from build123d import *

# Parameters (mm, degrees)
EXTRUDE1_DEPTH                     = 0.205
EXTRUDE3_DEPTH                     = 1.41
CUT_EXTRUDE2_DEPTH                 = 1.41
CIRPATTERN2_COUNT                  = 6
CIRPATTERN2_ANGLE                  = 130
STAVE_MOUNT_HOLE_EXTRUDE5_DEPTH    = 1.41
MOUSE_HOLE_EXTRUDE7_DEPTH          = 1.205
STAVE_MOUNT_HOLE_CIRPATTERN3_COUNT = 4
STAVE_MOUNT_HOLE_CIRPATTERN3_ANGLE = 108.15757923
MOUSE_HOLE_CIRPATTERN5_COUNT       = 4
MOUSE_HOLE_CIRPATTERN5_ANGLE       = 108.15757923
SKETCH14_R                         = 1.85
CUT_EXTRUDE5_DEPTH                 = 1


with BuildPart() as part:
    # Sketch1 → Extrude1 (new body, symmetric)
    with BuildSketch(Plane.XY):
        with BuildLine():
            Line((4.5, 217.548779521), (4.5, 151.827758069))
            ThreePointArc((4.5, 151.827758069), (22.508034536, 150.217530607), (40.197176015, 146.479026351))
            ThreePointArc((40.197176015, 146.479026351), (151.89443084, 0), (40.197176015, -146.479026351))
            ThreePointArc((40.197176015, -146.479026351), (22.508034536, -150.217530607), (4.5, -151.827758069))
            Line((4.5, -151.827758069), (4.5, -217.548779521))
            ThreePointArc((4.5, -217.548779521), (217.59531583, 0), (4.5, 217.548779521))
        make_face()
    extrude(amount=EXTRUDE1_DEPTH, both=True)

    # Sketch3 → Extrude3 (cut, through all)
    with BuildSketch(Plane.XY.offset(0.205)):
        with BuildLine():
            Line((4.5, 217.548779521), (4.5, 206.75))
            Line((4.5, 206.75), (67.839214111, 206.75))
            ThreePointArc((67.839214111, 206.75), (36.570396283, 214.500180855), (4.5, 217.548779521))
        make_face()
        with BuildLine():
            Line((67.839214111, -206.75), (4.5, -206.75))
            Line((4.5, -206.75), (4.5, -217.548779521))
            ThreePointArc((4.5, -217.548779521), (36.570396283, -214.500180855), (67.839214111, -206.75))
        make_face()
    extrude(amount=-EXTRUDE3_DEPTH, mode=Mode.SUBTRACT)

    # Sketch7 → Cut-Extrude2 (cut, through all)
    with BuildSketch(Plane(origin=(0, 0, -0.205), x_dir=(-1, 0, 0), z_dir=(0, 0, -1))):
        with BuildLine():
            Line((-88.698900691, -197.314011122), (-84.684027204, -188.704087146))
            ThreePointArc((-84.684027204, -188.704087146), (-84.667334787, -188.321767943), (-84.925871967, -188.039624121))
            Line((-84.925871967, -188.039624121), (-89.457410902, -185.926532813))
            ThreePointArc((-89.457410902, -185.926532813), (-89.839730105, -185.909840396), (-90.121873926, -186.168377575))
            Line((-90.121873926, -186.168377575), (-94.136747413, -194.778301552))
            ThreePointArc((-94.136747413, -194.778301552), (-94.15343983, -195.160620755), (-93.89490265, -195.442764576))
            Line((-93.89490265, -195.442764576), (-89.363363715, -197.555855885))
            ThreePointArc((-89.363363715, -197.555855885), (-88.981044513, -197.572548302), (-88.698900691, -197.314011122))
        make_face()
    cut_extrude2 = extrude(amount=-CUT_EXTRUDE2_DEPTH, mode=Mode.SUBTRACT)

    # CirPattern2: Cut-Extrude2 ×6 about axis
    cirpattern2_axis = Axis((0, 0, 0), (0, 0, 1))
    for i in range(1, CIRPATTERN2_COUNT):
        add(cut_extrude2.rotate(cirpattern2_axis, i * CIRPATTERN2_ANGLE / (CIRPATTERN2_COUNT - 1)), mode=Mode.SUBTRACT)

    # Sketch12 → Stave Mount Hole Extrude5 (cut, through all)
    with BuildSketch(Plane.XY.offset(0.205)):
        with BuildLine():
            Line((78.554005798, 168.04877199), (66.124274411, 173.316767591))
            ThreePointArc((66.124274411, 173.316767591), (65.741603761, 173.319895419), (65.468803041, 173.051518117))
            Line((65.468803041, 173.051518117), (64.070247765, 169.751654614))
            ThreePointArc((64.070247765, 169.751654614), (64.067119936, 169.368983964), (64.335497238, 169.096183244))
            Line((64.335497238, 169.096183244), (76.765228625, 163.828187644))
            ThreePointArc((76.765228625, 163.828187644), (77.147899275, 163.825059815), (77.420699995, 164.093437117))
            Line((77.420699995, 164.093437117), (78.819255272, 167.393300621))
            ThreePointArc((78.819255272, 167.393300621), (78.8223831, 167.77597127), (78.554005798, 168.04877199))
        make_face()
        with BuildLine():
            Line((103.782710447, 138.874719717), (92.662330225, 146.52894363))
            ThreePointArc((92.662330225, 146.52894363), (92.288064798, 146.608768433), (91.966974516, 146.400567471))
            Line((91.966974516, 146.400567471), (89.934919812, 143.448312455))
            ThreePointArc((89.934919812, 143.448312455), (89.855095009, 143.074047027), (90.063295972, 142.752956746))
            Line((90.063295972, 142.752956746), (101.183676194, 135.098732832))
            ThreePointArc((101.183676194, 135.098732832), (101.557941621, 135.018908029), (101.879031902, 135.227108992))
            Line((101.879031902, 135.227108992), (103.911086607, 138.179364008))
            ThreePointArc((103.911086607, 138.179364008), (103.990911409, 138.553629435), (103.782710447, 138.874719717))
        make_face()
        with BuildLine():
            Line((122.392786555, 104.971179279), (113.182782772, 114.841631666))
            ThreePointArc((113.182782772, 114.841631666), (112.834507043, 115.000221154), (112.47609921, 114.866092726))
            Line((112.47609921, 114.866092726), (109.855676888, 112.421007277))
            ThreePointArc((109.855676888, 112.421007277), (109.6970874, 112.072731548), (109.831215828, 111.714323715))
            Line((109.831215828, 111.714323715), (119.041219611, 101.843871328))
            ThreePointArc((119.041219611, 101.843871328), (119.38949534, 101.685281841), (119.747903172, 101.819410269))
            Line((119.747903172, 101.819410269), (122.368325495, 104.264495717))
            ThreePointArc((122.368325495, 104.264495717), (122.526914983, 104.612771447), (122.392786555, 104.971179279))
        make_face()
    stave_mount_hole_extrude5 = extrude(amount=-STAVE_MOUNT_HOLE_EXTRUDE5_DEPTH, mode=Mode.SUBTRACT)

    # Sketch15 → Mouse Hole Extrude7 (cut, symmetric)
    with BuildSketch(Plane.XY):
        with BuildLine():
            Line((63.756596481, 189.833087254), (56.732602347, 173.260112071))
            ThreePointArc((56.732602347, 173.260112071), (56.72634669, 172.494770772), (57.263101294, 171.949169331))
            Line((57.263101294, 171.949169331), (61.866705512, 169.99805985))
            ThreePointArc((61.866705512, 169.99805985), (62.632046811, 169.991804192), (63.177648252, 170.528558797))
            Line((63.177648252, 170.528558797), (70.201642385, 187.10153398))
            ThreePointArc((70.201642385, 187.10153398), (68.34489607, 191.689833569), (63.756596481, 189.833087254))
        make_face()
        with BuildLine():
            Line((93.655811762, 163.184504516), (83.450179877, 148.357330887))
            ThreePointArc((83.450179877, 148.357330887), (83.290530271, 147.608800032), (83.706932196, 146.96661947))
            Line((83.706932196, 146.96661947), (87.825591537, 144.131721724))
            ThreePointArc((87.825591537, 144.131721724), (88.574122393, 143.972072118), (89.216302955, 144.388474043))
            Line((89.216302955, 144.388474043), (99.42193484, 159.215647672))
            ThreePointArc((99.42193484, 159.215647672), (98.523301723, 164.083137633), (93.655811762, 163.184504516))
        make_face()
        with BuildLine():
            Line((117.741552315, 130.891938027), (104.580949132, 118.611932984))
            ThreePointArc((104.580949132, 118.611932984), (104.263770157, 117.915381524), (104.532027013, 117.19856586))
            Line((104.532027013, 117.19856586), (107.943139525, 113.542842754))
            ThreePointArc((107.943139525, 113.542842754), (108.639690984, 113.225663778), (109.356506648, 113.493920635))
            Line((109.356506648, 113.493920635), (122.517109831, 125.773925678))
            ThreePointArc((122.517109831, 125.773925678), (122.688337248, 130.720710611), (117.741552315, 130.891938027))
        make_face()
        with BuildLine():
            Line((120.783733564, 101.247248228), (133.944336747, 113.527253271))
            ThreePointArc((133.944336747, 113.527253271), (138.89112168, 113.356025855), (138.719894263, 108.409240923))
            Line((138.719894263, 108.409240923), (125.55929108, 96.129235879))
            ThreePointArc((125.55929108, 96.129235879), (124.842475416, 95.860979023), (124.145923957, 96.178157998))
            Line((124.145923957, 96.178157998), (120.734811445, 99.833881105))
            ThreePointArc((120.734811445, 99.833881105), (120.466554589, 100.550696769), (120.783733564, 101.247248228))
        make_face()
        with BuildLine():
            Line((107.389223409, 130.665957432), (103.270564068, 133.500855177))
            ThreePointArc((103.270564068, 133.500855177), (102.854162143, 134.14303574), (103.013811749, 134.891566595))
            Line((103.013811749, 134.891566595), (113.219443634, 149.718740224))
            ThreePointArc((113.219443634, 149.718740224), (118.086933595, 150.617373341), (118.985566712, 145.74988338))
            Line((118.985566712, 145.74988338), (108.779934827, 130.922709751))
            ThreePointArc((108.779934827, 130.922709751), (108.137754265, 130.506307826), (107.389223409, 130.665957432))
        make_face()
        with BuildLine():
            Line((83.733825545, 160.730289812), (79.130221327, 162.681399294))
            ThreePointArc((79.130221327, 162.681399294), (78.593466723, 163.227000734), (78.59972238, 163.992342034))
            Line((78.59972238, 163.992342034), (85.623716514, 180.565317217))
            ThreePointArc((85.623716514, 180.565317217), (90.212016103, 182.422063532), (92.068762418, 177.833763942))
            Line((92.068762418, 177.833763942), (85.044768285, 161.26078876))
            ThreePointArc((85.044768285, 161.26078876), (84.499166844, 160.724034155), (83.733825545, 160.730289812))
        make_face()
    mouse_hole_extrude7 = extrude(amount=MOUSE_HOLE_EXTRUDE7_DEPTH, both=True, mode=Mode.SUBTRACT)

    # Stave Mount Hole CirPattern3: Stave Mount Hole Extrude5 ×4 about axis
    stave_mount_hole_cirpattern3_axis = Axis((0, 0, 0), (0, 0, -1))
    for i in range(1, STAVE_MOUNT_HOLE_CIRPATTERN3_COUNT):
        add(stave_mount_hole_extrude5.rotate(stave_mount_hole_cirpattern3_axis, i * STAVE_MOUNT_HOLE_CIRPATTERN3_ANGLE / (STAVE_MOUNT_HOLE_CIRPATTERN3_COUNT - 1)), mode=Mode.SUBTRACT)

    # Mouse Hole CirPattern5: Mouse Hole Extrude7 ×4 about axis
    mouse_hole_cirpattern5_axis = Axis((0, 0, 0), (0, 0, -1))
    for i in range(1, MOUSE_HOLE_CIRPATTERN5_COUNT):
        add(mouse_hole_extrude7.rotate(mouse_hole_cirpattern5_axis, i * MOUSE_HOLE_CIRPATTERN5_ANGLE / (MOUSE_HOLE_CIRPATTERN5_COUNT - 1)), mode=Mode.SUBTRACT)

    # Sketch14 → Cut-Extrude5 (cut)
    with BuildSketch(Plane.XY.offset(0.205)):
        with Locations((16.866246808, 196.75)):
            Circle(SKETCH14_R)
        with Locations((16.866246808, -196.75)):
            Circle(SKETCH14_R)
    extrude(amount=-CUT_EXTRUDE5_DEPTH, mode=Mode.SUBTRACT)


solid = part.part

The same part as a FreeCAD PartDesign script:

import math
import FreeCAD as App
import Part
import Sketcher
from FreeCAD import Vector
Q = App.Units.Quantity

doc = App.newDocument("Part")
params = doc.addObject("Spreadsheet::Sheet", "Params")
for row, (alias, value) in enumerate([
    ("pad1_length", "0.41 mm"),
    ("sketch3_radius", "0.5 mm"),
    ("sketch3_length", "5 mm"),
    ("sketch3_length2", "9.5 mm"),
    ("sketch4_radius", "0.5 mm"),
    ("sketch4_length", "13.5 mm"),
    ("sketch5_radius", "1 mm"),
    ("sketch5_radius2", "3.5 mm"),
    ("sketch5_length", "18 mm"),
    ("pocket4_length", "2.41 mm"),
    ("sketch6_diameter", "3.7 mm"),
    ("pocket5_length", "1 mm"),
], start=1):
    params.set(f"A{row}", alias)
    params.set(f"B{row}", "=" + value)
    params.setAlias(f"B{row}", alias)

body = doc.addObject("PartDesign::Body", "Body")

# Sketch on XY plane
sketch1 = body.newObject("Sketcher::SketchObject", "Sketch")
sketch1.AttachmentSupport = (doc.getObject("XY_Plane"), [""])
sketch1.MapMode = "FlatFace"
sketch1.addGeometry(Part.LineSegment(Vector(4, 218, 0), Vector(4, 152, 0)), False)
sketch1.addGeometry(Part.ArcOfCircle(Part.Circle(Vector(0, 0, 0), Vector(0, 0, 1), 152), math.radians(74.65), math.radians(88.3)), False)
sketch1.addGeometry(Part.ArcOfCircle(Part.Circle(Vector(0, 0, 0), Vector(0, 0, 1), 152), math.radians(-75), math.radians(75)), False)
sketch1.addGeometry(Part.ArcOfCircle(Part.Circle(Vector(0, 0, 0), Vector(0, 0, 1), 152), math.radians(-88.3), math.radians(-74.65)), False)
sketch1.addGeometry(Part.LineSegment(Vector(4, -152, 0), Vector(4, -218, 0)), False)
sketch1.addGeometry(Part.ArcOfCircle(Part.Circle(Vector(0, 0, 0), Vector(0, 0, 1), 218), math.radians(-89), math.radians(89)), False)
sketch1.addConstraint(Sketcher.Constraint("Coincident", 0, 2, 1, 2))
sketch1.addConstraint(Sketcher.Constraint("Tangent", 1, 1, 2, 2))
sketch1.addConstraint(Sketcher.Constraint("Tangent", 2, 1, 3, 2))
sketch1.addConstraint(Sketcher.Constraint("Coincident", 3, 1, 4, 1))
sketch1.addConstraint(Sketcher.Constraint("Coincident", 4, 2, 5, 1))
sketch1.addConstraint(Sketcher.Constraint("Coincident", 5, 2, 0, 1))
sketch1.addConstraint(Sketcher.Constraint("Vertical", 0))
sketch1.addConstraint(Sketcher.Constraint("Vertical", 4))
sketch1.addConstraint(Sketcher.Constraint("Coincident", 1, 3, -1, 1))
sketch1.addConstraint(Sketcher.Constraint("Coincident", 3, 3, -1, 1))
sketch1.addConstraint(Sketcher.Constraint("Coincident", 5, 3, -1, 1))
sketch1.addConstraint(Sketcher.Constraint("Vertical", 1, 1, 2, 1))
sketch1.addConstraint(Sketcher.Constraint("Vertical", 0, 2, 3, 1))
sketch1.addConstraint(Sketcher.Constraint("DistanceX", -1, 1, 0, 2, 4.5))
sketch1.addConstraint(Sketcher.Constraint("Radius", 1, 151.894431))
sketch1.addConstraint(Sketcher.Constraint("Radius", 5, 217.595316))
sketch1.addConstraint(Sketcher.Constraint("DistanceY", 1, 1, 0, 2, 5.348732))
pad1 = body.newObject("PartDesign::Pad", "Pad")
pad1.Profile = sketch1
pad1.setExpression("Length", "Params.pad1_length")
pad1.Midplane = True

# Sketch on XY plane
sketch2 = body.newObject("Sketcher::SketchObject", "Sketch001")
sketch2.AttachmentSupport = (doc.getObject("XY_Plane"), [""])
sketch2.MapMode = "FlatFace"
sketch2.AttachmentOffset = App.Placement(Vector(0, 0, 0.205), App.Rotation())
sketch2.addGeometry(Part.LineSegment(Vector(4, 218, 0), Vector(4, 207, 0)), False)
sketch2.addGeometry(Part.LineSegment(Vector(4, 207, 0), Vector(68, 207, 0)), False)
sketch2.addGeometry(Part.ArcOfCircle(Part.Circle(Vector(0, 0, 0), Vector(0, 0, 1), 218), math.radians(71.83), math.radians(88.82)), False)
sketch2.addGeometry(Part.LineSegment(Vector(68, -207, 0), Vector(4, -207, 0)), False)
sketch2.addGeometry(Part.LineSegment(Vector(4, -207, 0), Vector(4, -218, 0)), False)
sketch2.addGeometry(Part.ArcOfCircle(Part.Circle(Vector(0, 0, 0), Vector(0, 0, 1), 218), math.radians(-88.82), math.radians(-71.83)), False)
sketch2.addConstraint(Sketcher.Constraint("Coincident", 0, 2, 1, 1))
sketch2.addConstraint(Sketcher.Constraint("Coincident", 1, 2, 2, 1))
sketch2.addConstraint(Sketcher.Constraint("Coincident", 2, 2, 0, 1))
sketch2.addConstraint(Sketcher.Constraint("Coincident", 3, 2, 4, 1))
sketch2.addConstraint(Sketcher.Constraint("Coincident", 4, 2, 5, 1))
sketch2.addConstraint(Sketcher.Constraint("Coincident", 5, 2, 3, 1))
sketch2.addConstraint(Sketcher.Constraint("Vertical", 0))
sketch2.addConstraint(Sketcher.Constraint("Horizontal", 1))
sketch2.addConstraint(Sketcher.Constraint("Horizontal", 3))
sketch2.addConstraint(Sketcher.Constraint("Vertical", 4))
sketch2.addConstraint(Sketcher.Constraint("Coincident", 2, 3, -1, 1))
sketch2.addConstraint(Sketcher.Constraint("Coincident", 5, 3, -1, 1))
sketch2.addConstraint(Sketcher.Constraint("Equal", 2, 5))
sketch2.addConstraint(Sketcher.Constraint("Symmetric", 0, 2, 3, 2, -1))
sketch2.addConstraint(Sketcher.Constraint("DistanceX", -1, 1, 0, 2, 4.5))
sketch2.addConstraint(Sketcher.Constraint("DistanceY", 3, 2, 0, 2, 413.5))
sketch2.addConstraint(Sketcher.Constraint("Radius", 2, 217.595316))
pocket1 = body.newObject("PartDesign::Pocket", "Pocket")
pocket1.Profile = sketch2
pocket1.Type = "ThroughAll"

# Sketch on XY plane
sketch3 = body.newObject("Sketcher::SketchObject", "Sketch002")
sketch3.AttachmentSupport = (doc.getObject("XY_Plane"), [""])
sketch3.MapMode = "FlatFace"
sketch3.AttachmentOffset = App.Placement(Vector(0, 0, -0.205), App.Rotation())
sketch3.addGeometry(Part.LineSegment(Vector(88.7, -197.31, 0), Vector(84.68, -188.7, 0)), False)
sketch3.addGeometry(Part.ArcOfCircle(Part.Circle(Vector(85.14, -188.49, 0), Vector(0, 0, 1), 0.5), math.radians(115), math.radians(205)), False)
sketch3.addGeometry(Part.LineSegment(Vector(84.93, -188.04, 0), Vector(89.46, -185.93, 0)), False)
sketch3.addGeometry(Part.ArcOfCircle(Part.Circle(Vector(89.67, -186.38, 0), Vector(0, 0, 1), 0.5), math.radians(25), math.radians(115)), False)
sketch3.addGeometry(Part.LineSegment(Vector(90.12, -186.17, 0), Vector(94.14, -194.78, 0)), False)
sketch3.addGeometry(Part.ArcOfCircle(Part.Circle(Vector(93.68, -194.99, 0), Vector(0, 0, 1), 0.5), math.radians(-65), math.radians(25)), False)
sketch3.addGeometry(Part.LineSegment(Vector(93.89, -195.44, 0), Vector(89.36, -197.56, 0)), False)
sketch3.addGeometry(Part.ArcOfCircle(Part.Circle(Vector(89.15, -197.1, 0), Vector(0, 0, 1), 0.5), math.radians(-155), math.radians(-65)), False)
sketch3.addConstraint(Sketcher.Constraint("Tangent", 0, 2, 1, 2))
sketch3.addConstraint(Sketcher.Constraint("Tangent", 1, 1, 2, 1))
sketch3.addConstraint(Sketcher.Constraint("Tangent", 2, 2, 3, 2))
sketch3.addConstraint(Sketcher.Constraint("Tangent", 3, 1, 4, 1))
sketch3.addConstraint(Sketcher.Constraint("Tangent", 4, 2, 5, 2))
sketch3.addConstraint(Sketcher.Constraint("Tangent", 5, 1, 6, 1))
sketch3.addConstraint(Sketcher.Constraint("Tangent", 6, 2, 7, 2))
sketch3.addConstraint(Sketcher.Constraint("Tangent", 7, 1, 0, 1))
sketch3.addConstraint(Sketcher.Constraint("Equal", 1, 3))
sketch3.addConstraint(Sketcher.Constraint("Equal", 3, 5))
sketch3.addConstraint(Sketcher.Constraint("Equal", 5, 7))
sketch3.addConstraint(Sketcher.Constraint("Perpendicular", 0, 2))
sketch3.addConstraint(Sketcher.Constraint("Perpendicular", 2, 4))
sketch3.addConstraint(Sketcher.Constraint("Perpendicular", 4, 6))
sketch3.addConstraint(Sketcher.Constraint("Radius", 1, 0.5))
sketch3.addConstraint(Sketcher.Constraint("Angle", 0, Q("115 deg")))
sketch3.addConstraint(Sketcher.Constraint("Distance", 2, 5.0))
sketch3.addConstraint(Sketcher.Constraint("Distance", 0, 9.5))
sketch3.addConstraint(Sketcher.Constraint("DistanceY", 7, 3, -1, 1, 197.102702))
sketch3.addConstraint(Sketcher.Constraint("DistanceX", -1, 1, 7, 1, 88.698901))
sketch3.setExpression("Constraints[14]", "Params.sketch3_radius")
sketch3.setExpression("Constraints[16]", "Params.sketch3_length")
sketch3.setExpression("Constraints[17]", "Params.sketch3_length2")
pocket2 = body.newObject("PartDesign::Pocket", "Pocket001")
pocket2.Profile = sketch3
pocket2.Type = "ThroughAll"
pocket2.Reversed = True
doc.recompute()

polarpattern = body.newObject("PartDesign::PolarPattern", "PolarPattern")
polarpattern.Originals = [pocket2]
polarpattern.Axis = (doc.getObject("Z_Axis"), [""])
polarpattern.Angle = 130
polarpattern.Occurrences = 6
body.Tip = polarpattern

# Sketch on XY plane
sketch4 = body.newObject("Sketcher::SketchObject", "Sketch003")
sketch4.AttachmentSupport = (doc.getObject("XY_Plane"), [""])
sketch4.MapMode = "FlatFace"
sketch4.AttachmentOffset = App.Placement(Vector(0, 0, 0.205), App.Rotation())
sketch4.addGeometry(Part.LineSegment(Vector(78.55, 168.05, 0), Vector(66.12, 173.32, 0)), False)
sketch4.addGeometry(Part.ArcOfCircle(Part.Circle(Vector(65.93, 172.86, 0), Vector(0, 0, 1), 0.5), math.radians(67), math.radians(157)), False)
sketch4.addGeometry(Part.LineSegment(Vector(65.47, 173.05, 0), Vector(64.07, 169.75, 0)), False)
sketch4.addGeometry(Part.ArcOfCircle(Part.Circle(Vector(64.53, 169.56, 0), Vector(0, 0, 1), 0.5), math.radians(157), math.radians(247)), False)
sketch4.addGeometry(Part.LineSegment(Vector(64.34, 169.1, 0), Vector(76.77, 163.83, 0)), False)
sketch4.addGeometry(Part.ArcOfCircle(Part.Circle(Vector(76.96, 164.29, 0), Vector(0, 0, 1), 0.5), math.radians(-113), math.radians(-23)), False)
sketch4.addGeometry(Part.LineSegment(Vector(77.42, 164.09, 0), Vector(78.82, 167.39, 0)), False)
sketch4.addGeometry(Part.ArcOfCircle(Part.Circle(Vector(78.36, 167.59, 0), Vector(0, 0, 1), 0.5), math.radians(-23), math.radians(67)), False)
sketch4.addGeometry(Part.LineSegment(Vector(103.78, 138.87, 0), Vector(92.66, 146.53, 0)), False)
sketch4.addGeometry(Part.ArcOfCircle(Part.Circle(Vector(92.38, 146.12, 0), Vector(0, 0, 1), 0.5), math.radians(55), math.radians(145)), False)
sketch4.addGeometry(Part.LineSegment(Vector(91.97, 146.4, 0), Vector(89.93, 143.45, 0)), False)
sketch4.addGeometry(Part.ArcOfCircle(Part.Circle(Vector(90.35, 143.16, 0), Vector(0, 0, 1), 0.5), math.radians(145), math.radians(235)), False)
sketch4.addGeometry(Part.LineSegment(Vector(90.06, 142.75, 0), Vector(101.18, 135.1, 0)), False)
sketch4.addGeometry(Part.ArcOfCircle(Part.Circle(Vector(101.47, 135.51, 0), Vector(0, 0, 1), 0.5), math.radians(-125), math.radians(-35)), False)
sketch4.addGeometry(Part.LineSegment(Vector(101.88, 135.23, 0), Vector(103.91, 138.18, 0)), False)
sketch4.addGeometry(Part.ArcOfCircle(Part.Circle(Vector(103.5, 138.46, 0), Vector(0, 0, 1), 0.5), math.radians(-35), math.radians(55)), False)
sketch4.addGeometry(Part.LineSegment(Vector(122.39, 104.97, 0), Vector(113.18, 114.84, 0)), False)
sketch4.addGeometry(Part.ArcOfCircle(Part.Circle(Vector(112.82, 114.5, 0), Vector(0, 0, 1), 0.5), math.radians(43), math.radians(133)), False)
sketch4.addGeometry(Part.LineSegment(Vector(112.48, 114.87, 0), Vector(109.86, 112.42, 0)), False)
sketch4.addGeometry(Part.ArcOfCircle(Part.Circle(Vector(110.2, 112.06, 0), Vector(0, 0, 1), 0.5), math.radians(133), math.radians(223)), False)
sketch4.addGeometry(Part.LineSegment(Vector(109.83, 111.71, 0), Vector(119.04, 101.84, 0)), False)
sketch4.addGeometry(Part.ArcOfCircle(Part.Circle(Vector(119.41, 102.18, 0), Vector(0, 0, 1), 0.5), math.radians(-137), math.radians(-47)), False)
sketch4.addGeometry(Part.LineSegment(Vector(119.75, 101.82, 0), Vector(122.37, 104.26, 0)), False)
sketch4.addGeometry(Part.ArcOfCircle(Part.Circle(Vector(122.03, 104.63, 0), Vector(0, 0, 1), 0.5), math.radians(-47), math.radians(43)), False)
sketch4.addConstraint(Sketcher.Constraint("Tangent", 0, 2, 1, 1))
sketch4.addConstraint(Sketcher.Constraint("Tangent", 1, 2, 2, 1))
sketch4.addConstraint(Sketcher.Constraint("Tangent", 2, 2, 3, 1))
sketch4.addConstraint(Sketcher.Constraint("Tangent", 3, 2, 4, 1))
sketch4.addConstraint(Sketcher.Constraint("Tangent", 4, 2, 5, 1))
sketch4.addConstraint(Sketcher.Constraint("Tangent", 5, 2, 6, 1))
sketch4.addConstraint(Sketcher.Constraint("Tangent", 6, 2, 7, 1))
sketch4.addConstraint(Sketcher.Constraint("Tangent", 7, 2, 0, 1))
sketch4.addConstraint(Sketcher.Constraint("Tangent", 8, 2, 9, 1))
sketch4.addConstraint(Sketcher.Constraint("Tangent", 9, 2, 10, 1))
sketch4.addConstraint(Sketcher.Constraint("Tangent", 10, 2, 11, 1))
sketch4.addConstraint(Sketcher.Constraint("Tangent", 11, 2, 12, 1))
sketch4.addConstraint(Sketcher.Constraint("Tangent", 12, 2, 13, 1))
sketch4.addConstraint(Sketcher.Constraint("Tangent", 13, 2, 14, 1))
sketch4.addConstraint(Sketcher.Constraint("Tangent", 14, 2, 15, 1))
sketch4.addConstraint(Sketcher.Constraint("Tangent", 15, 2, 8, 1))
sketch4.addConstraint(Sketcher.Constraint("Tangent", 16, 2, 17, 1))
sketch4.addConstraint(Sketcher.Constraint("Tangent", 17, 2, 18, 1))
sketch4.addConstraint(Sketcher.Constraint("Tangent", 18, 2, 19, 1))
sketch4.addConstraint(Sketcher.Constraint("Tangent", 19, 2, 20, 1))
sketch4.addConstraint(Sketcher.Constraint("Tangent", 20, 2, 21, 1))
sketch4.addConstraint(Sketcher.Constraint("Tangent", 21, 2, 22, 1))
sketch4.addConstraint(Sketcher.Constraint("Tangent", 22, 2, 23, 1))
sketch4.addConstraint(Sketcher.Constraint("Tangent", 23, 2, 16, 1))
sketch4.addConstraint(Sketcher.Constraint("Equal", 1, 3))
sketch4.addConstraint(Sketcher.Constraint("Equal", 3, 5))
sketch4.addConstraint(Sketcher.Constraint("Equal", 5, 7))
sketch4.addConstraint(Sketcher.Constraint("Equal", 7, 9))
sketch4.addConstraint(Sketcher.Constraint("Equal", 9, 11))
sketch4.addConstraint(Sketcher.Constraint("Equal", 11, 13))
sketch4.addConstraint(Sketcher.Constraint("Equal", 13, 15))
sketch4.addConstraint(Sketcher.Constraint("Equal", 15, 17))
sketch4.addConstraint(Sketcher.Constraint("Equal", 17, 19))
sketch4.addConstraint(Sketcher.Constraint("Equal", 19, 21))
sketch4.addConstraint(Sketcher.Constraint("Equal", 21, 23))
sketch4.addConstraint(Sketcher.Constraint("Perpendicular", 0, 2))
sketch4.addConstraint(Sketcher.Constraint("Perpendicular", 2, 4))
sketch4.addConstraint(Sketcher.Constraint("Perpendicular", 4, 6))
sketch4.addConstraint(Sketcher.Constraint("Perpendicular", 8, 10))
sketch4.addConstraint(Sketcher.Constraint("Perpendicular", 10, 12))
sketch4.addConstraint(Sketcher.Constraint("Perpendicular", 12, 14))
sketch4.addConstraint(Sketcher.Constraint("Perpendicular", 16, 18))
sketch4.addConstraint(Sketcher.Constraint("Perpendicular", 18, 20))
sketch4.addConstraint(Sketcher.Constraint("Perpendicular", 20, 22))
sketch4.addConstraint(Sketcher.Constraint("Equal", 4, 8))
sketch4.addConstraint(Sketcher.Constraint("Equal", 6, 10))
sketch4.addConstraint(Sketcher.Constraint("Equal", 12, 16))
sketch4.addConstraint(Sketcher.Constraint("Equal", 14, 18))
sketch4.addConstraint(Sketcher.Constraint("Radius", 1, 0.5))
sketch4.addConstraint(Sketcher.Constraint("Distance", 0, 13.5))
sketch4.addConstraint(Sketcher.Constraint("Distance", 2, 3.584))
sketch4.addConstraint(Sketcher.Constraint("DistanceY", -1, 1, 13, 3, 135.510599))
sketch4.addConstraint(Sketcher.Constraint("DistanceX", -1, 1, 5, 2, 77.4207))
sketch4.addConstraint(Sketcher.Constraint("DistanceY", -1, 1, 6, 2, 167.393301))
sketch4.addConstraint(Sketcher.Constraint("DistanceX", -1, 1, 17, 2, 112.476099))
sketch4.addConstraint(Sketcher.Constraint("DistanceX", 5, 3, 9, 3, 15.418501))
sketch4.addConstraint(Sketcher.Constraint("DistanceX", -1, 1, 3, 3, 64.530608))
sketch4.addConstraint(Sketcher.Constraint("DistanceX", -1, 1, 15, 3, 103.499221))
sketch4.addConstraint(Sketcher.Constraint("DistanceX", -1, 1, 17, 3, 112.81721))
sketch4.addConstraint(Sketcher.Constraint("DistanceY", -1, 1, 17, 3, 114.50052))
sketch4.setExpression("Constraints[48]", "Params.sketch4_radius")
sketch4.setExpression("Constraints[49]", "Params.sketch4_length")
pocket3 = body.newObject("PartDesign::Pocket", "Pocket002")
pocket3.Profile = sketch4
pocket3.Type = "ThroughAll"

# Sketch on XY plane
sketch5 = body.newObject("Sketcher::SketchObject", "Sketch004")
sketch5.AttachmentSupport = (doc.getObject("XY_Plane"), [""])
sketch5.MapMode = "FlatFace"
sketch5.addGeometry(Part.LineSegment(Vector(63.8, 189.8, 0), Vector(56.7, 173.3, 0)), False)
sketch5.addGeometry(Part.ArcOfCircle(Part.Circle(Vector(57.7, 172.9, 0), Vector(0, 0, 1), 1), math.radians(157), math.radians(247)), False)
sketch5.addGeometry(Part.LineSegment(Vector(57.3, 171.9, 0), Vector(61.9, 170, 0)), False)
sketch5.addGeometry(Part.ArcOfCircle(Part.Circle(Vector(62.3, 170.9, 0), Vector(0, 0, 1), 1), math.radians(-113), math.radians(-23)), False)
sketch5.addGeometry(Part.LineSegment(Vector(63.2, 170.5, 0), Vector(70.2, 187.1, 0)), False)
sketch5.addGeometry(Part.ArcOfCircle(Part.Circle(Vector(67, 188.5, 0), Vector(0, 0, 1), 3.5), math.radians(-23), math.radians(157)), False)
sketch5.addGeometry(Part.LineSegment(Vector(93.7, 163.2, 0), Vector(83.5, 148.4, 0)), False)
sketch5.addGeometry(Part.ArcOfCircle(Part.Circle(Vector(84.3, 147.8, 0), Vector(0, 0, 1), 1), math.radians(145), math.radians(235)), False)
sketch5.addGeometry(Part.LineSegment(Vector(83.7, 147, 0), Vector(87.8, 144.1, 0)), False)
sketch5.addGeometry(Part.ArcOfCircle(Part.Circle(Vector(88.4, 145, 0), Vector(0, 0, 1), 1), math.radians(-125), math.radians(-35)), False)
sketch5.addGeometry(Part.LineSegment(Vector(89.2, 144.4, 0), Vector(99.4, 159.2, 0)), False)
sketch5.addGeometry(Part.ArcOfCircle(Part.Circle(Vector(96.5, 161.2, 0), Vector(0, 0, 1), 3.5), math.radians(-35), math.radians(145)), False)
sketch5.addGeometry(Part.LineSegment(Vector(117.7, 130.9, 0), Vector(104.6, 118.6, 0)), False)
sketch5.addGeometry(Part.ArcOfCircle(Part.Circle(Vector(105.3, 117.9, 0), Vector(0, 0, 1), 1), math.radians(133), math.radians(223)), False)
sketch5.addGeometry(Part.LineSegment(Vector(104.5, 117.2, 0), Vector(107.9, 113.5, 0)), False)
sketch5.addGeometry(Part.ArcOfCircle(Part.Circle(Vector(108.7, 114.2, 0), Vector(0, 0, 1), 1), math.radians(-137), math.radians(-47)), False)
sketch5.addGeometry(Part.LineSegment(Vector(109.4, 113.5, 0), Vector(122.5, 125.8, 0)), False)
sketch5.addGeometry(Part.ArcOfCircle(Part.Circle(Vector(120.1, 128.3, 0), Vector(0, 0, 1), 3.5), math.radians(-47), math.radians(133)), False)
sketch5.addGeometry(Part.LineSegment(Vector(133.9, 113.5, 0), Vector(120.8, 101.2, 0)), False)
sketch5.addGeometry(Part.ArcOfCircle(Part.Circle(Vector(121.5, 100.5, 0), Vector(0, 0, 1), 1), math.radians(133), math.radians(223)), False)
sketch5.addGeometry(Part.LineSegment(Vector(120.7, 99.8, 0), Vector(124.1, 96.2, 0)), False)
sketch5.addGeometry(Part.ArcOfCircle(Part.Circle(Vector(124.9, 96.9, 0), Vector(0, 0, 1), 1), math.radians(-137), math.radians(-47)), False)
sketch5.addGeometry(Part.LineSegment(Vector(125.6, 96.1, 0), Vector(138.7, 108.4, 0)), False)
sketch5.addGeometry(Part.ArcOfCircle(Part.Circle(Vector(136.3, 111, 0), Vector(0, 0, 1), 3.5), math.radians(-47), math.radians(133)), False)
sketch5.addGeometry(Part.LineSegment(Vector(103.3, 133.5, 0), Vector(107.4, 130.7, 0)), False)
sketch5.addGeometry(Part.ArcOfCircle(Part.Circle(Vector(108, 131.5, 0), Vector(0, 0, 1), 1), math.radians(-125), math.radians(-35)), False)
sketch5.addGeometry(Part.LineSegment(Vector(108.8, 130.9, 0), Vector(119, 145.7, 0)), False)
sketch5.addGeometry(Part.ArcOfCircle(Part.Circle(Vector(116.1, 147.7, 0), Vector(0, 0, 1), 3.5), math.radians(-35), math.radians(145)), False)
sketch5.addGeometry(Part.LineSegment(Vector(113.2, 149.7, 0), Vector(103, 134.9, 0)), False)
sketch5.addGeometry(Part.ArcOfCircle(Part.Circle(Vector(103.8, 134.3, 0), Vector(0, 0, 1), 1), math.radians(145), math.radians(235)), False)
sketch5.addGeometry(Part.LineSegment(Vector(79.1, 162.7, 0), Vector(83.7, 160.7, 0)), False)
sketch5.addGeometry(Part.ArcOfCircle(Part.Circle(Vector(84.1, 161.7, 0), Vector(0, 0, 1), 1), math.radians(-113), math.radians(-23)), False)
sketch5.addGeometry(Part.LineSegment(Vector(85, 161.3, 0), Vector(92.1, 177.8, 0)), False)
sketch5.addGeometry(Part.ArcOfCircle(Part.Circle(Vector(88.8, 179.2, 0), Vector(0, 0, 1), 3.5), math.radians(-23), math.radians(157)), False)
sketch5.addGeometry(Part.LineSegment(Vector(85.6, 180.6, 0), Vector(78.6, 164, 0)), False)
sketch5.addGeometry(Part.ArcOfCircle(Part.Circle(Vector(79.5, 163.6, 0), Vector(0, 0, 1), 1), math.radians(157), math.radians(247)), False)
sketch5.addConstraint(Sketcher.Constraint("Tangent", 0, 2, 1, 1))
sketch5.addConstraint(Sketcher.Constraint("Tangent", 1, 2, 2, 1))
sketch5.addConstraint(Sketcher.Constraint("Tangent", 2, 2, 3, 1))
sketch5.addConstraint(Sketcher.Constraint("Tangent", 3, 2, 4, 1))
sketch5.addConstraint(Sketcher.Constraint("Tangent", 4, 2, 5, 1))
sketch5.addConstraint(Sketcher.Constraint("Tangent", 5, 2, 0, 1))
sketch5.addConstraint(Sketcher.Constraint("Tangent", 6, 2, 7, 1))
sketch5.addConstraint(Sketcher.Constraint("Tangent", 7, 2, 8, 1))
sketch5.addConstraint(Sketcher.Constraint("Tangent", 8, 2, 9, 1))
sketch5.addConstraint(Sketcher.Constraint("Tangent", 9, 2, 10, 1))
sketch5.addConstraint(Sketcher.Constraint("Tangent", 10, 2, 11, 1))
sketch5.addConstraint(Sketcher.Constraint("Tangent", 11, 2, 6, 1))
sketch5.addConstraint(Sketcher.Constraint("Tangent", 12, 2, 13, 1))
sketch5.addConstraint(Sketcher.Constraint("Tangent", 13, 2, 14, 1))
sketch5.addConstraint(Sketcher.Constraint("Tangent", 14, 2, 15, 1))
sketch5.addConstraint(Sketcher.Constraint("Tangent", 15, 2, 16, 1))
sketch5.addConstraint(Sketcher.Constraint("Tangent", 16, 2, 17, 1))
sketch5.addConstraint(Sketcher.Constraint("Tangent", 17, 2, 12, 1))
sketch5.addConstraint(Sketcher.Constraint("Tangent", 18, 2, 19, 1))
sketch5.addConstraint(Sketcher.Constraint("Tangent", 19, 2, 20, 1))
sketch5.addConstraint(Sketcher.Constraint("Tangent", 20, 2, 21, 1))
sketch5.addConstraint(Sketcher.Constraint("Tangent", 21, 2, 22, 1))
sketch5.addConstraint(Sketcher.Constraint("Tangent", 22, 2, 23, 1))
sketch5.addConstraint(Sketcher.Constraint("Tangent", 23, 2, 18, 1))
sketch5.addConstraint(Sketcher.Constraint("Tangent", 24, 2, 25, 1))
sketch5.addConstraint(Sketcher.Constraint("Tangent", 25, 2, 26, 1))
sketch5.addConstraint(Sketcher.Constraint("Tangent", 26, 2, 27, 1))
sketch5.addConstraint(Sketcher.Constraint("Tangent", 27, 2, 28, 1))
sketch5.addConstraint(Sketcher.Constraint("Tangent", 28, 2, 29, 1))
sketch5.addConstraint(Sketcher.Constraint("Tangent", 29, 2, 24, 1))
sketch5.addConstraint(Sketcher.Constraint("Tangent", 30, 2, 31, 1))
sketch5.addConstraint(Sketcher.Constraint("Tangent", 31, 2, 32, 1))
sketch5.addConstraint(Sketcher.Constraint("Tangent", 32, 2, 33, 1))
sketch5.addConstraint(Sketcher.Constraint("Tangent", 33, 2, 34, 1))
sketch5.addConstraint(Sketcher.Constraint("Tangent", 34, 2, 35, 1))
sketch5.addConstraint(Sketcher.Constraint("Tangent", 35, 2, 30, 1))
sketch5.addConstraint(Sketcher.Constraint("Equal", 1, 3))
sketch5.addConstraint(Sketcher.Constraint("Equal", 3, 7))
sketch5.addConstraint(Sketcher.Constraint("Equal", 7, 9))
sketch5.addConstraint(Sketcher.Constraint("Equal", 5, 11))
sketch5.addConstraint(Sketcher.Constraint("Equal", 9, 13))
sketch5.addConstraint(Sketcher.Constraint("Equal", 13, 15))
sketch5.addConstraint(Sketcher.Constraint("Equal", 11, 17))
sketch5.addConstraint(Sketcher.Constraint("Equal", 15, 19))
sketch5.addConstraint(Sketcher.Constraint("Equal", 19, 21))
sketch5.addConstraint(Sketcher.Constraint("Equal", 17, 23))
sketch5.addConstraint(Sketcher.Constraint("Equal", 21, 25))
sketch5.addConstraint(Sketcher.Constraint("Equal", 23, 27))
sketch5.addConstraint(Sketcher.Constraint("Equal", 25, 29))
sketch5.addConstraint(Sketcher.Constraint("Equal", 29, 31))
sketch5.addConstraint(Sketcher.Constraint("Equal", 27, 33))
sketch5.addConstraint(Sketcher.Constraint("Equal", 31, 35))
sketch5.addConstraint(Sketcher.Constraint("Perpendicular", 0, 2))
sketch5.addConstraint(Sketcher.Constraint("Perpendicular", 2, 4))
sketch5.addConstraint(Sketcher.Constraint("Perpendicular", 6, 8))
sketch5.addConstraint(Sketcher.Constraint("Perpendicular", 8, 10))
sketch5.addConstraint(Sketcher.Constraint("Perpendicular", 12, 14))
sketch5.addConstraint(Sketcher.Constraint("Perpendicular", 14, 16))
sketch5.addConstraint(Sketcher.Constraint("Parallel", 16, 18))
sketch5.addConstraint(Sketcher.Constraint("Perpendicular", 18, 20))
sketch5.addConstraint(Sketcher.Constraint("Perpendicular", 20, 22))
sketch5.addConstraint(Sketcher.Constraint("Perpendicular", 10, 24))
sketch5.addConstraint(Sketcher.Constraint("Perpendicular", 24, 26))
sketch5.addConstraint(Sketcher.Constraint("Parallel", 26, 28))
sketch5.addConstraint(Sketcher.Constraint("Perpendicular", 4, 30))
sketch5.addConstraint(Sketcher.Constraint("Perpendicular", 30, 32))
sketch5.addConstraint(Sketcher.Constraint("Parallel", 32, 34))
sketch5.addConstraint(Sketcher.Constraint("Equal", 4, 6))
sketch5.addConstraint(Sketcher.Constraint("Equal", 10, 12))
sketch5.addConstraint(Sketcher.Constraint("Equal", 16, 18))
sketch5.addConstraint(Sketcher.Constraint("Equal", 22, 26))
sketch5.addConstraint(Sketcher.Constraint("Equal", 28, 32))
sketch5.addConstraint(Sketcher.Constraint("Radius", 1, 1.0))
sketch5.addConstraint(Sketcher.Constraint("Radius", 5, 3.5))
sketch5.addConstraint(Sketcher.Constraint("Distance", 0, 18.0))
sketch5.addConstraint(Sketcher.Constraint("DistanceY", 12, 2, 17, 3, 9.720999))
sketch5.addConstraint(Sketcher.Constraint("DistanceX", -1, 1, 1, 2, 57.263101))
sketch5.addConstraint(Sketcher.Constraint("DistanceY", -1, 1, 35, 2, 162.681399))
sketch5.addConstraint(Sketcher.Constraint("DistanceX", 9, 3, 13, 3, 16.870601))
sketch5.addConstraint(Sketcher.Constraint("DistanceX", 11, 3, 13, 3, 8.724298))
sketch5.addConstraint(Sketcher.Constraint("DistanceY", 13, 3, 1, 3, 54.989102))
sketch5.addConstraint(Sketcher.Constraint("DistanceY", 13, 3, 25, 3, 13.608901))
sketch5.addConstraint(Sketcher.Constraint("DistanceY", 0, 2, 5, 3, 15.207199))
sketch5.addConstraint(Sketcher.Constraint("DistanceY", 31, 3, 0, 2, 11.609101))
sketch5.addConstraint(Sketcher.Constraint("DistanceY", 7, 2, 35, 3, 16.635501))
sketch5.addConstraint(Sketcher.Constraint("DistanceX", -1, 1, 7, 3, 84.273912))
sketch5.addConstraint(Sketcher.Constraint("DistanceX", -1, 1, 21, 3, 124.877069))
sketch5.addConstraint(Sketcher.Constraint("DistanceY", -1, 1, 21, 3, 96.860381))
sketch5.addConstraint(Sketcher.Constraint("DistanceX", -1, 1, 33, 3, 88.846239))
sketch5.addConstraint(Sketcher.Constraint("DistanceX", -1, 1, 28, 2, 103.013812))
sketch5.setExpression("Constraints[72]", "Params.sketch5_radius")
sketch5.setExpression("Constraints[73]", "Params.sketch5_radius2")
sketch5.setExpression("Constraints[74]", "Params.sketch5_length")
pocket4 = body.newObject("PartDesign::Pocket", "Pocket003")
pocket4.Profile = sketch5
pocket4.setExpression("Length", "Params.pocket4_length")
pocket4.Midplane = True
doc.recompute()

polarpattern2 = body.newObject("PartDesign::PolarPattern", "PolarPattern001")
polarpattern2.Originals = [pocket3]
polarpattern2.Axis = (doc.getObject("Z_Axis"), [""])
polarpattern2.Angle = 108.157579
polarpattern2.Occurrences = 4
polarpattern2.Reversed = True
body.Tip = polarpattern2
doc.recompute()

polarpattern3 = body.newObject("PartDesign::PolarPattern", "PolarPattern002")
polarpattern3.Originals = [pocket4]
polarpattern3.Axis = (doc.getObject("Z_Axis"), [""])
polarpattern3.Angle = 108.157579
polarpattern3.Occurrences = 4
polarpattern3.Reversed = True
body.Tip = polarpattern3

# Sketch on XY plane
sketch6 = body.newObject("Sketcher::SketchObject", "Sketch005")
sketch6.AttachmentSupport = (doc.getObject("XY_Plane"), [""])
sketch6.MapMode = "FlatFace"
sketch6.AttachmentOffset = App.Placement(Vector(0, 0, 0.205), App.Rotation())
sketch6.addGeometry(Part.Circle(Vector(16.9, 196.8, 0), Vector(0, 0, 1), 1.9), False)
sketch6.addGeometry(Part.Circle(Vector(16.9, -196.8, 0), Vector(0, 0, 1), 1.9), False)
sketch6.addConstraint(Sketcher.Constraint("Equal", 0, 1))
sketch6.addConstraint(Sketcher.Constraint("Symmetric", 0, 3, 1, 3, -1))
sketch6.addConstraint(Sketcher.Constraint("Diameter", 0, 3.7))
sketch6.addConstraint(Sketcher.Constraint("DistanceY", 1, 3, 0, 3, 393.5))
sketch6.addConstraint(Sketcher.Constraint("DistanceX", -1, 1, 0, 3, 16.866247))
sketch6.setExpression("Constraints[2]", "Params.sketch6_diameter")
pocket5 = body.newObject("PartDesign::Pocket", "Pocket004")
pocket5.Profile = sketch6
pocket5.setExpression("Length", "Params.pocket5_length")

doc.recompute()
